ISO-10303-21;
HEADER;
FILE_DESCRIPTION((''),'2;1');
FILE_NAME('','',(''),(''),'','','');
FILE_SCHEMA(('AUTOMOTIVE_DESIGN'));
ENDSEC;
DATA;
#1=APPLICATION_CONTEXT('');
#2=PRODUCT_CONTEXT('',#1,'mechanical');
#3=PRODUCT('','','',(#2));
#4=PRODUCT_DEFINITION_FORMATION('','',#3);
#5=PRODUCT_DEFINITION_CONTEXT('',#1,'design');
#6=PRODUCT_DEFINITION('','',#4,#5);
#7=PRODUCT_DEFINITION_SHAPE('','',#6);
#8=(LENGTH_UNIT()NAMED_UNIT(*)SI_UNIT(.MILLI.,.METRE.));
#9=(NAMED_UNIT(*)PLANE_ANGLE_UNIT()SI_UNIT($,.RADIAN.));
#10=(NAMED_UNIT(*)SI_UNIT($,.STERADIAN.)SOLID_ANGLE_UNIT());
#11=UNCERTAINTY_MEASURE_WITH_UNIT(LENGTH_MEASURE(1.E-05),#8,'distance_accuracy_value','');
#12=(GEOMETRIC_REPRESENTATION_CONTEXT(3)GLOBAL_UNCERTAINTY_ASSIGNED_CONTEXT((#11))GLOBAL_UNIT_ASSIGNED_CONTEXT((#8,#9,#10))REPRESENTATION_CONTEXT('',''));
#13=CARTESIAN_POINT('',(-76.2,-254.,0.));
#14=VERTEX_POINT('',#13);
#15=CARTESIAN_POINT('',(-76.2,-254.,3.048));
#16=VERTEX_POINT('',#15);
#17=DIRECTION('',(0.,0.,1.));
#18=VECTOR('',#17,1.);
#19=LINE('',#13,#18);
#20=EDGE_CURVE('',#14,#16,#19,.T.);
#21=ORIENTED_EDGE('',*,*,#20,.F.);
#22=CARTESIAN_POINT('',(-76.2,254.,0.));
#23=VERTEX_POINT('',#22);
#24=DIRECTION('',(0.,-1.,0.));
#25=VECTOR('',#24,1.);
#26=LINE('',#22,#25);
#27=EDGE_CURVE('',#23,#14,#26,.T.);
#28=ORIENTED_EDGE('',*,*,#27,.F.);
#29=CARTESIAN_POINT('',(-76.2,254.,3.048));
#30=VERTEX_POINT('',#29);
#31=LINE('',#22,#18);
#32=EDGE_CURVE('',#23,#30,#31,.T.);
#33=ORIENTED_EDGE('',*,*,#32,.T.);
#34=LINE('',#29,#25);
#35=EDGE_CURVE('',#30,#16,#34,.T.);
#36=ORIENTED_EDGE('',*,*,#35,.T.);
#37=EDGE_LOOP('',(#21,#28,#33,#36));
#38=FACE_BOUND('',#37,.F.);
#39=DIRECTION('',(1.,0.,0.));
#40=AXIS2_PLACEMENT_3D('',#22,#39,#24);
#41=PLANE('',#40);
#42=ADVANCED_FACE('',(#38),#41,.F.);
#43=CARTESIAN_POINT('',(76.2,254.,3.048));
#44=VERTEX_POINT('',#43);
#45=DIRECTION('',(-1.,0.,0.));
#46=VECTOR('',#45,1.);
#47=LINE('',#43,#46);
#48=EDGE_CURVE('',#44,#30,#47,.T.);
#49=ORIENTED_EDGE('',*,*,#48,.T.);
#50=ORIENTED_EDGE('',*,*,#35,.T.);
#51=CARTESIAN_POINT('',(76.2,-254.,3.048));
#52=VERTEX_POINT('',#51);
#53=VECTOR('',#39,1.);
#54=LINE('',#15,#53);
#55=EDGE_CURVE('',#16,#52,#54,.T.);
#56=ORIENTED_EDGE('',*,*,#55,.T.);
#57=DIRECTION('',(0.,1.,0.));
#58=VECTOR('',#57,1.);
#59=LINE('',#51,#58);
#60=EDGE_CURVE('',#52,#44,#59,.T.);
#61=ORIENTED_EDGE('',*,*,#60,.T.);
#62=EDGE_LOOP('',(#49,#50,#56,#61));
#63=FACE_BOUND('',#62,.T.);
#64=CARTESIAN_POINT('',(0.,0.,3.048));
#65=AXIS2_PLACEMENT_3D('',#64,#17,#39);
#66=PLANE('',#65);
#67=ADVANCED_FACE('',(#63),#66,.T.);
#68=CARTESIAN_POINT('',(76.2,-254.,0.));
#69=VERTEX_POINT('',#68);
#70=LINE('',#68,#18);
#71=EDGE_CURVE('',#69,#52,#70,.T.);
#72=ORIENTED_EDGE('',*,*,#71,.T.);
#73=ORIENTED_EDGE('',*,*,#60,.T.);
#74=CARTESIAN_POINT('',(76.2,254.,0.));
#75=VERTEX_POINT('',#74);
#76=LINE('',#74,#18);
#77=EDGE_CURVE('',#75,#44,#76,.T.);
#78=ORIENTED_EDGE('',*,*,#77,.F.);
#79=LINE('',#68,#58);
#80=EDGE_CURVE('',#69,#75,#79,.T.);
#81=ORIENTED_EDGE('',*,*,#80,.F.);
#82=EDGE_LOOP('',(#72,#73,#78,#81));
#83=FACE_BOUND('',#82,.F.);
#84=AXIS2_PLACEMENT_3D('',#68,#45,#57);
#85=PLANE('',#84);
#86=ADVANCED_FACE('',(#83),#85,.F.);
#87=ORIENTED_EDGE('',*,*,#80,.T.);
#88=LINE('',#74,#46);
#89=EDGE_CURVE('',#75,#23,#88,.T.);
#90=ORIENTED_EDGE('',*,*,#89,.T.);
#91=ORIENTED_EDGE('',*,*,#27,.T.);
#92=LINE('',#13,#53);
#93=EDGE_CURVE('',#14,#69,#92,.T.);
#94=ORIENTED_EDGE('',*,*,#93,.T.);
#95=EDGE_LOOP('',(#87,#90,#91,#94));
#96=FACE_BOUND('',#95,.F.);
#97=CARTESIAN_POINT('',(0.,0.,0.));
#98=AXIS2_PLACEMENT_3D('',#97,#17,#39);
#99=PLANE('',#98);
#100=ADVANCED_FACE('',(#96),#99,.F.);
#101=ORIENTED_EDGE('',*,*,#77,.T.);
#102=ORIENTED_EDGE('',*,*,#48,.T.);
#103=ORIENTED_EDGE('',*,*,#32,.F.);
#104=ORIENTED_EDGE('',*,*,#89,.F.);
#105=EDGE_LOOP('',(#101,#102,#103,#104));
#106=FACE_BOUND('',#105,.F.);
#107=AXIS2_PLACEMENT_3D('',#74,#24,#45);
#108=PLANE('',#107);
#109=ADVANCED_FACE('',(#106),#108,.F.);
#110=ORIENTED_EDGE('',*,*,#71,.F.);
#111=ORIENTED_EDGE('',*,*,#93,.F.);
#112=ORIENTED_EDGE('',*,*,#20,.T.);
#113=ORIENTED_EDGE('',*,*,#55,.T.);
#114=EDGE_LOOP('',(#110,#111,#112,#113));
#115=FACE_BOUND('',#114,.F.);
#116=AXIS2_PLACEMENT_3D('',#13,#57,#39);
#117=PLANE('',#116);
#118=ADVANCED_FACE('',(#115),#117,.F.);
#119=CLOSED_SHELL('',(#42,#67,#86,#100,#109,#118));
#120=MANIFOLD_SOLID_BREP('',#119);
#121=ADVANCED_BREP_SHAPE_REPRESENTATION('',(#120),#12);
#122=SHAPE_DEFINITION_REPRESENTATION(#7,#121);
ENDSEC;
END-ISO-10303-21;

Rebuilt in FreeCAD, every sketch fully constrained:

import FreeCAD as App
import Part
import Sketcher

V = App.Vector
Q = App.Units.Quantity

doc = App.newDocument("Part")
params = doc.addObject("Spreadsheet::Sheet", "Params")
for row, (alias, value) in enumerate([
    ("sketch1_width", "6 in"),
    ("sketch1_height", "20 in"),
    ("pad1_length", "0.12 in"),
], start=1):
    params.set(f"A{row}", alias)
    params.set(f"B{row}", "=" + value)
    params.setAlias(f"B{row}", alias)

body = doc.addObject("PartDesign::Body", "Body")

# Sketch on XY plane
sketch1 = body.newObject("Sketcher::SketchObject", "Sketch")
sketch1.AttachmentSupport = (doc.getObject("XY_Plane"), [""])
sketch1.MapMode = "FlatFace"
sketch1.addGeometry([
    Part.LineSegment(V(76, -254, 0), V(76, 254, 0)),
    Part.LineSegment(V(76, 254, 0), V(-76, 254, 0)),
    Part.LineSegment(V(-76, 254, 0), V(-76, -254, 0)),
    Part.LineSegment(V(-76, -254, 0), V(76, -254, 0)),
], False)
sketch1.addConstraint([
    Sketcher.Constraint("Coincident", 0, 2, 1, 1),
    Sketcher.Constraint("Coincident", 1, 2, 2, 1),
    Sketcher.Constraint("Coincident", 2, 2, 3, 1),
    Sketcher.Constraint("Coincident", 3, 2, 0, 1),
    Sketcher.Constraint("Vertical", 0),
    Sketcher.Constraint("Horizontal", 1),
    Sketcher.Constraint("Vertical", 2),
    Sketcher.Constraint("Horizontal", 3),
    Sketcher.Constraint("Symmetric", 0, 2, 2, 2, -1, 1),
    Sketcher.Constraint("DistanceX", 1, 2, 1, 1, Q("6 in")),
    Sketcher.Constraint("DistanceY", 0, 1, 0, 2, Q("20 in")),
])
sketch1.setExpression("Constraints[9]", "Params.sketch1_width")
sketch1.setExpression("Constraints[10]", "Params.sketch1_height")
pad1 = body.newObject("PartDesign::Pad", "Pad")
pad1.Profile = sketch1
pad1.setExpression("Length", "Params.pad1_length")

doc.recompute()
